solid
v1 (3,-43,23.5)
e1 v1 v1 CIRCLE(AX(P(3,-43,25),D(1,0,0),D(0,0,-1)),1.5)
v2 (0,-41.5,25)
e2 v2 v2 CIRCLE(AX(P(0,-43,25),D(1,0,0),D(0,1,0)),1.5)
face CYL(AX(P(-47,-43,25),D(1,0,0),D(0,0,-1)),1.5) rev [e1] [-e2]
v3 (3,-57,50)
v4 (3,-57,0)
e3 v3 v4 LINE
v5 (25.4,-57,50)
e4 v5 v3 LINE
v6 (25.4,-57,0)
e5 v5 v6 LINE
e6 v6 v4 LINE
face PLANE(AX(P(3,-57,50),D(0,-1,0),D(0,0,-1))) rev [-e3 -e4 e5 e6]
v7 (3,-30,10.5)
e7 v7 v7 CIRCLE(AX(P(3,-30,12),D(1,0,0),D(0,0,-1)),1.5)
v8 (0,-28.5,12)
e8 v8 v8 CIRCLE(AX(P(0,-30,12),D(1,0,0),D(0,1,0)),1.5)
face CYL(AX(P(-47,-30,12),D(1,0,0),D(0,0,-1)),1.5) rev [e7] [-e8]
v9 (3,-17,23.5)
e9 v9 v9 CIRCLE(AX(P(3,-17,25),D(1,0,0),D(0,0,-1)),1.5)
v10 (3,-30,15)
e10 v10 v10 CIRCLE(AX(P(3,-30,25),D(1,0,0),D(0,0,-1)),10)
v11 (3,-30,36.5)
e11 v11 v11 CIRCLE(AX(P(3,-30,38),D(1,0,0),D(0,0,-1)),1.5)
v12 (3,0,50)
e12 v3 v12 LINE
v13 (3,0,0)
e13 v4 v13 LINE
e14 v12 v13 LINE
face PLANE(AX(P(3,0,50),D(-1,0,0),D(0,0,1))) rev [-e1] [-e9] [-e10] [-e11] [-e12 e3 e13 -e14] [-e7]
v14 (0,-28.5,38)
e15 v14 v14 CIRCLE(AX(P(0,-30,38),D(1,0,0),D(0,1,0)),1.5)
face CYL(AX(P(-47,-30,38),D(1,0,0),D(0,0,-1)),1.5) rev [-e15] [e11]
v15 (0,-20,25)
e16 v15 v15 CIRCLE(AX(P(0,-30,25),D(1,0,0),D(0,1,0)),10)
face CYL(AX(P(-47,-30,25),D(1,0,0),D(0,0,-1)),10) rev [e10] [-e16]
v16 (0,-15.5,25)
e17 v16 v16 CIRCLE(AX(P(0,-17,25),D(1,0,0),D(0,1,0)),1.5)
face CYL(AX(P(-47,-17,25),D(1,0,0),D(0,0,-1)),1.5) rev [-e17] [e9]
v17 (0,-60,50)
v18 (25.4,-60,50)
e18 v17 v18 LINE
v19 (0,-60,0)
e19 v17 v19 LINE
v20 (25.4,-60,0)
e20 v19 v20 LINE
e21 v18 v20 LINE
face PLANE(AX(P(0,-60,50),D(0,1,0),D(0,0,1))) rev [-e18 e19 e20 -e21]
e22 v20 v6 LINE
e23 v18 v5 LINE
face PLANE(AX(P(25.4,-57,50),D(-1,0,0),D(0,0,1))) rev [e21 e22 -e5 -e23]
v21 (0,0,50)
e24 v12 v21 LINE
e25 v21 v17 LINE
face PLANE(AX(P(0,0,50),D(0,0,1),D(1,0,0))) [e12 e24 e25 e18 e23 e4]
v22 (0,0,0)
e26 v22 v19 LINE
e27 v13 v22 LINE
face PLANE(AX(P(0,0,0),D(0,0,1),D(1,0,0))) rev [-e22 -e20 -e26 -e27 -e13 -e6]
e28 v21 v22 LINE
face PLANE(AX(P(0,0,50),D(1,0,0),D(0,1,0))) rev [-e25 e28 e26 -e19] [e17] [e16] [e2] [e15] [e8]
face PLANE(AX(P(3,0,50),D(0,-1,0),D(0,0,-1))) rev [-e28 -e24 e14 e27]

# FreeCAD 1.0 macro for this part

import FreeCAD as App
import Part
import Sketcher
from FreeCAD import Vector


def add_polygon(sketch, points):
    """Adds a closed chain of lines whose ends are joined by coincident constraints."""
    first, n = sketch.GeometryCount, len(points)
    for a, b in zip(points, points[1:] + points[:1]):
        sketch.addGeometry(Part.LineSegment(App.Vector(*a, 0), App.Vector(*b, 0)), False)
    for i in range(n):
        sketch.addConstraint(Sketcher.Constraint("Coincident", first + i, 2, first + (i + 1) % n, 1))

doc = App.newDocument("Part")
params = doc.addObject("Spreadsheet::Sheet", "Params")
for row, (alias, value) in enumerate([
    ("sketch1_width", "3 mm"),
    ("sketch1_height", "60 mm"),
    ("sketch1_width2", "25.4 mm"),
    ("pad1_length", "50 mm"),
    ("sketch2_diameter", "20 mm"),
    ("sketch2_diameter2", "3 mm"),
    ("pocket1_length", "50 mm"),
], start=1):
    params.set(f"A{row}", alias)
    params.set(f"B{row}", "=" + value)
    params.setAlias(f"B{row}", alias)

body = doc.addObject("PartDesign::Body", "Body")

# Sketch on XY plane
sketch1 = body.newObject("Sketcher::SketchObject", "Sketch")
sketch1.AttachmentSupport = (doc.getObject("XY_Plane"), [""])
sketch1.MapMode = "FlatFace"
add_polygon(sketch1, [(0, 0), (0, -60), (25.4, -60), (25.4, -57), (3, -57), (3, 0)])  # lines 0-5
sketch1.addConstraint(Sketcher.Constraint("Vertical", 0))
sketch1.addConstraint(Sketcher.Constraint("Horizontal", 1))
sketch1.addConstraint(Sketcher.Constraint("Vertical", 2))
sketch1.addConstraint(Sketcher.Constraint("Horizontal", 3))
sketch1.addConstraint(Sketcher.Constraint("Vertical", 4))
sketch1.addConstraint(Sketcher.Constraint("Horizontal", 5))
sketch1.addConstraint(Sketcher.Constraint("Coincident", 5, 2, -1, 1))
sketch1.addConstraint(Sketcher.Constraint("Equal", 5, 2))
sketch1.addConstraint(Sketcher.Constraint("DistanceX", 5, 2, 5, 1, 3.0))
sketch1.addConstraint(Sketcher.Constraint("DistanceY", 0, 2, 0, 1, 60.0))
sketch1.addConstraint(Sketcher.Constraint("DistanceX", 1, 1, 1, 2, 25.4))
sketch1.setExpression("Constraints[14]", "Params.sketch1_width")
sketch1.setExpression("Constraints[15]", "Params.sketch1_height")
sketch1.setExpression("Constraints[16]", "Params.sketch1_width2")
pad1 = body.newObject("PartDesign::Pad", "Pad")
pad1.Profile = sketch1
pad1.setExpression("Length", "Params.pad1_length")

# Sketch on YZ plane
sketch2 = body.newObject("Sketcher::SketchObject", "Sketch001")
sketch2.AttachmentSupport = (doc.getObject("YZ_Plane"), [""])
sketch2.MapMode = "FlatFace"
sketch2.AttachmentOffset = App.Placement(Vector(0, 0, 3), App.Rotation())
sketch2.addGeometry(Part.Circle(Vector(-30, 25, 0), Vector(0, 0, 1), 10), False)
sketch2.addGeometry(Part.Circle(Vector(-17, 25, 0), Vector(0, 0, 1), 1.5), False)
sketch2.addGeometry(Part.Circle(Vector(-30, 12, 0), Vector(0, 0, 1), 1.5), False)
sketch2.addGeometry(Part.Circle(Vector(-43, 25, 0), Vector(0, 0, 1), 1.5), False)
sketch2.addGeometry(Part.Circle(Vector(-30, 38, 0), Vector(0, 0, 1), 1.5), False)
sketch2.addConstraint(Sketcher.Constraint("Equal", 1, 2))
sketch2.addConstraint(Sketcher.Constraint("Equal", 2, 3))
sketch2.addConstraint(Sketcher.Constraint("Equal", 3, 4))
sketch2.addConstraint(Sketcher.Constraint("Horizontal", 0, 3, 1, 3))
sketch2.addConstraint(Sketcher.Constraint("Horizontal", 1, 3, 3, 3))
sketch2.addConstraint(Sketcher.Constraint("Vertical", 0, 3, 2, 3))
sketch2.addConstraint(Sketcher.Constraint("Vertical", 2, 3, 4, 3))
sketch2.addConstraint(Sketcher.Constraint("Diameter", 0, 20.0))
sketch2.addConstraint(Sketcher.Constraint("Diameter", 1, 3.0))
sketch2.addConstraint(Sketcher.Constraint("DistanceX", 0, 3, -1, 1, 30.0))
sketch2.addConstraint(Sketcher.Constraint("DistanceY", -1, 1, 0, 3, 25.0))
sketch2.addConstraint(Sketcher.Constraint("DistanceX", 1, 3, -1, 1, 17.0))
sketch2.addConstraint(Sketcher.Constraint("DistanceY", -1, 1, 2, 3, 12.0))
sketch2.addConstraint(Sketcher.Constraint("DistanceX", 3, 3, -1, 1, 43.0))
sketch2.addConstraint(Sketcher.Constraint("DistanceY", -1, 1, 4, 3, 38.0))
sketch2.setExpression("Constraints[7]", "Params.sketch2_diameter")
sketch2.setExpression("Constraints[8]", "Params.sketch2_diameter2")
pocket1 = body.newObject("PartDesign::Pocket", "Pocket")
pocket1.Profile = sketch2
pocket1.setExpression("Length", "Params.pocket1_length")

doc.recompute()
